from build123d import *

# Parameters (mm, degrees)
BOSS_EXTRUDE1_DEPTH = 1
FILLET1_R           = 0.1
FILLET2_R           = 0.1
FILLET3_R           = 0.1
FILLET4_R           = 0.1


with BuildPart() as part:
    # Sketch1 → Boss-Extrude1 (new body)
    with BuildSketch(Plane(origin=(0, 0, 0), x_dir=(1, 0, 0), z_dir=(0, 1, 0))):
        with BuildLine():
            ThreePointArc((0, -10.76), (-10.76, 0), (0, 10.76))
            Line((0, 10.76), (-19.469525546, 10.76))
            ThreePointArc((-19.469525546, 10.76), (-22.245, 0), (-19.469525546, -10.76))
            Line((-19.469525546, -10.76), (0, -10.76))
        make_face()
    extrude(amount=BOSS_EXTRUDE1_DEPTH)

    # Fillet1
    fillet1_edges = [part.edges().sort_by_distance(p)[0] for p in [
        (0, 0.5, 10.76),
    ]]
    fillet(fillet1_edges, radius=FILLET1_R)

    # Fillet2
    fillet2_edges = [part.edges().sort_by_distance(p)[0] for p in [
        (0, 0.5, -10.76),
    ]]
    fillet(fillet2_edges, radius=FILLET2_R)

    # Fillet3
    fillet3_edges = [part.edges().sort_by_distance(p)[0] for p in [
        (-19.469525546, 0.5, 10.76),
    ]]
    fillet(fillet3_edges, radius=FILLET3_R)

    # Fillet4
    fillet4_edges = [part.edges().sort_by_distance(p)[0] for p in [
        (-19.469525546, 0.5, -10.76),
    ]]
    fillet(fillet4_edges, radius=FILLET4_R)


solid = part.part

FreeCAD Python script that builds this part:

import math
import FreeCAD as App
import Part
import Sketcher

V = App.Vector
Q = App.Units.Quantity


def edges_at(feature, points):
    """Names of the edges that pass closest to the given points."""
    edges = feature.Shape.Edges
    near = lambda p: min(range(len(edges)), key=lambda i: edges[i].distToShape(Part.Vertex(*p))[0])
    return sorted({f"Edge{near(p) + 1}" for p in points})

doc = App.newDocument("Part")
params = doc.addObject("Spreadsheet::Sheet", "Params")
for row, (alias, value) in enumerate([
    ("sketch1_radius", "10.76 mm"),
    ("pad1_length", "1 mm"),
    ("fillet_radius", "0.1 mm"),
    ("fillet2_radius", "0.1 mm"),
    ("fillet3_radius", "0.1 mm"),
    ("fillet4_radius", "0.1 mm"),
], start=1):
    params.set(f"A{row}", alias)
    params.set(f"B{row}", "=" + value)
    params.setAlias(f"B{row}", alias)

body = doc.addObject("PartDesign::Body", "Body")

sketch1 = body.newObject("Sketcher::SketchObject", "Sketch")
sketch1.AttachmentSupport = (doc.getObject("XZ_Plane"), [""])
sketch1.MapMode = "FlatFace"
sketch1.addGeometry([
    Part.ArcOfCircle(Part.Circle(V(0, 0, 0), V(0, 0, 1), 11), math.radians(90), math.radians(270)),
    Part.LineSegment(V(0, -11, 0), V(-19, -11, 0)),
    Part.ArcOfCircle(Part.Circle(V(0, 0, 0), V(0, 0, 1), 22), math.radians(151), math.radians(209)),
    Part.LineSegment(V(-19, 11, 0), V(0, 11, 0)),
], False)
sketch1.addConstraint([
    Sketcher.Constraint("Tangent", 0, 2, 1, 1),
    Sketcher.Constraint("Coincident", 1, 2, 2, 2),
    Sketcher.Constraint("Coincident", 2, 1, 3, 1),
    Sketcher.Constraint("Tangent", 3, 2, 0, 1),
    Sketcher.Constraint("Horizontal", 1),
    Sketcher.Constraint("Horizontal", 3),
    Sketcher.Constraint("Coincident", 0, 3, -1, 1),
    Sketcher.Constraint("Coincident", 2, 3, -1, 1),
    Sketcher.Constraint("Radius", 0, Q("10.76 mm")),
    Sketcher.Constraint("Radius", 2, Q("22.245 mm")),
])
sketch1.setExpression("Constraints[8]", "Params.sketch1_radius")
pad1 = body.newObject("PartDesign::Pad", "Pad")
pad1.Profile = sketch1
pad1.setExpression("Length", "Params.pad1_length")
pad1.Reversed = True
doc.recompute()

fillet = body.newObject("PartDesign::Fillet", "Fillet")
fillet.Base = (pad1, edges_at(pad1, [(0, 0.5, 10.76)]))
fillet.setExpression("Radius", "Params.fillet_radius")
doc.recompute()

fillet2 = body.newObject("PartDesign::Fillet", "Fillet001")
fillet2.Base = (fillet, edges_at(fillet, [(0, 0.5, -10.76)]))
fillet2.setExpression("Radius", "Params.fillet2_radius")
doc.recompute()

fillet3 = body.newObject("PartDesign::Fillet", "Fillet002")
fillet3.Base = (fillet2, edges_at(fillet2, [(-19.47, 0.5, 10.76)]))
fillet3.setExpression("Radius", "Params.fillet3_radius")
doc.recompute()

fillet4 = body.newObject("PartDesign::Fillet", "Fillet003")
fillet4.Base = (fillet3, edges_at(fillet3, [(-19.47, 0.5, -10.76)]))
fillet4.setExpression("Radius", "Params.fillet4_radius")

doc.recompute()
